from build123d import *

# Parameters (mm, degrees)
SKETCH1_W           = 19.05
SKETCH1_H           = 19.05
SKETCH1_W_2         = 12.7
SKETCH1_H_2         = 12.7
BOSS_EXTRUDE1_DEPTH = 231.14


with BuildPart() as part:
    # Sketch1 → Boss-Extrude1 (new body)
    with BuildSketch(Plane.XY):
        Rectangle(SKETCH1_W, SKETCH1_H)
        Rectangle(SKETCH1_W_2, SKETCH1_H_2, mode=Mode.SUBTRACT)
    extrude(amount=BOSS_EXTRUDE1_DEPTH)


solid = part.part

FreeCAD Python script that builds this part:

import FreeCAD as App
import Part
import Sketcher
Q = App.Units.Quantity

doc = App.newDocument("Part")
body = doc.addObject("PartDesign::Body", "Body")

# Sketch on XY plane
sketch1 = doc.addObject("Sketcher::SketchObject", "Sketch")
body.addObject(sketch1)
sketch1.AttachmentSupport = (doc.XY_Plane, [""])
sketch1.MapMode = "FlatFace"
sketch1.addGeometry(Part.LineSegment(App.Vector(-10, 10, 0), App.Vector(-10, -10, 0)), False)
sketch1.addGeometry(Part.LineSegment(App.Vector(-10, -10, 0), App.Vector(10, -10, 0)), False)
sketch1.addGeometry(Part.LineSegment(App.Vector(10, -10, 0), App.Vector(10, 10, 0)), False)
sketch1.addGeometry(Part.LineSegment(App.Vector(10, 10, 0), App.Vector(-10, 10, 0)), False)
sketch1.addGeometry(Part.LineSegment(App.Vector(6, -6, 0), App.Vector(-6, -6, 0)), False)
sketch1.addGeometry(Part.LineSegment(App.Vector(-6, -6, 0), App.Vector(-6, 6, 0)), False)
sketch1.addGeometry(Part.LineSegment(App.Vector(-6, 6, 0), App.Vector(6, 6, 0)), False)
sketch1.addGeometry(Part.LineSegment(App.Vector(6, 6, 0), App.Vector(6, -6, 0)), False)
sketch1.addConstraint(Sketcher.Constraint("Coincident", 0, 2, 1, 1))
sketch1.addConstraint(Sketcher.Constraint("Coincident", 1, 2, 2, 1))
sketch1.addConstraint(Sketcher.Constraint("Coincident", 2, 2, 3, 1))
sketch1.addConstraint(Sketcher.Constraint("Coincident", 3, 2, 0, 1))
sketch1.addConstraint(Sketcher.Constraint("Coincident", 4, 2, 5, 1))
sketch1.addConstraint(Sketcher.Constraint("Coincident", 5, 2, 6, 1))
sketch1.addConstraint(Sketcher.Constraint("Coincident", 6, 2, 7, 1))
sketch1.addConstraint(Sketcher.Constraint("Coincident", 7, 2, 4, 1))
sketch1.addConstraint(Sketcher.Constraint("Vertical", 0))
sketch1.addConstraint(Sketcher.Constraint("Horizontal", 1))
sketch1.addConstraint(Sketcher.Constraint("Vertical", 2))
sketch1.addConstraint(Sketcher.Constraint("Horizontal", 3))
sketch1.addConstraint(Sketcher.Constraint("Horizontal", 4))
sketch1.addConstraint(Sketcher.Constraint("Vertical", 5))
sketch1.addConstraint(Sketcher.Constraint("Horizontal", 6))
sketch1.addConstraint(Sketcher.Constraint("Vertical", 7))
sketch1.addConstraint(Sketcher.Constraint("Symmetric", 0, 2, 2, 2, -1, 1))
sketch1.addConstraint(Sketcher.Constraint("Symmetric", 4, 2, 6, 2, -1, 1))
sketch1.addConstraint(Sketcher.Constraint("Equal", 3, 0))
sketch1.addConstraint(Sketcher.Constraint("Equal", 6, 5))
sketch1.addConstraint(Sketcher.Constraint("DistanceX", 4, 2, 4, 1, Q("0.5 in")))
sketch1.addConstraint(Sketcher.Constraint("DistanceX", 1, 1, 1, 2, Q("0.75 in")))
pad1 = doc.addObject("PartDesign::Pad", "Pad")
body.addObject(pad1)
pad1.Profile = sketch1
pad1.Length = Q("9.1 in")

doc.recompute()
